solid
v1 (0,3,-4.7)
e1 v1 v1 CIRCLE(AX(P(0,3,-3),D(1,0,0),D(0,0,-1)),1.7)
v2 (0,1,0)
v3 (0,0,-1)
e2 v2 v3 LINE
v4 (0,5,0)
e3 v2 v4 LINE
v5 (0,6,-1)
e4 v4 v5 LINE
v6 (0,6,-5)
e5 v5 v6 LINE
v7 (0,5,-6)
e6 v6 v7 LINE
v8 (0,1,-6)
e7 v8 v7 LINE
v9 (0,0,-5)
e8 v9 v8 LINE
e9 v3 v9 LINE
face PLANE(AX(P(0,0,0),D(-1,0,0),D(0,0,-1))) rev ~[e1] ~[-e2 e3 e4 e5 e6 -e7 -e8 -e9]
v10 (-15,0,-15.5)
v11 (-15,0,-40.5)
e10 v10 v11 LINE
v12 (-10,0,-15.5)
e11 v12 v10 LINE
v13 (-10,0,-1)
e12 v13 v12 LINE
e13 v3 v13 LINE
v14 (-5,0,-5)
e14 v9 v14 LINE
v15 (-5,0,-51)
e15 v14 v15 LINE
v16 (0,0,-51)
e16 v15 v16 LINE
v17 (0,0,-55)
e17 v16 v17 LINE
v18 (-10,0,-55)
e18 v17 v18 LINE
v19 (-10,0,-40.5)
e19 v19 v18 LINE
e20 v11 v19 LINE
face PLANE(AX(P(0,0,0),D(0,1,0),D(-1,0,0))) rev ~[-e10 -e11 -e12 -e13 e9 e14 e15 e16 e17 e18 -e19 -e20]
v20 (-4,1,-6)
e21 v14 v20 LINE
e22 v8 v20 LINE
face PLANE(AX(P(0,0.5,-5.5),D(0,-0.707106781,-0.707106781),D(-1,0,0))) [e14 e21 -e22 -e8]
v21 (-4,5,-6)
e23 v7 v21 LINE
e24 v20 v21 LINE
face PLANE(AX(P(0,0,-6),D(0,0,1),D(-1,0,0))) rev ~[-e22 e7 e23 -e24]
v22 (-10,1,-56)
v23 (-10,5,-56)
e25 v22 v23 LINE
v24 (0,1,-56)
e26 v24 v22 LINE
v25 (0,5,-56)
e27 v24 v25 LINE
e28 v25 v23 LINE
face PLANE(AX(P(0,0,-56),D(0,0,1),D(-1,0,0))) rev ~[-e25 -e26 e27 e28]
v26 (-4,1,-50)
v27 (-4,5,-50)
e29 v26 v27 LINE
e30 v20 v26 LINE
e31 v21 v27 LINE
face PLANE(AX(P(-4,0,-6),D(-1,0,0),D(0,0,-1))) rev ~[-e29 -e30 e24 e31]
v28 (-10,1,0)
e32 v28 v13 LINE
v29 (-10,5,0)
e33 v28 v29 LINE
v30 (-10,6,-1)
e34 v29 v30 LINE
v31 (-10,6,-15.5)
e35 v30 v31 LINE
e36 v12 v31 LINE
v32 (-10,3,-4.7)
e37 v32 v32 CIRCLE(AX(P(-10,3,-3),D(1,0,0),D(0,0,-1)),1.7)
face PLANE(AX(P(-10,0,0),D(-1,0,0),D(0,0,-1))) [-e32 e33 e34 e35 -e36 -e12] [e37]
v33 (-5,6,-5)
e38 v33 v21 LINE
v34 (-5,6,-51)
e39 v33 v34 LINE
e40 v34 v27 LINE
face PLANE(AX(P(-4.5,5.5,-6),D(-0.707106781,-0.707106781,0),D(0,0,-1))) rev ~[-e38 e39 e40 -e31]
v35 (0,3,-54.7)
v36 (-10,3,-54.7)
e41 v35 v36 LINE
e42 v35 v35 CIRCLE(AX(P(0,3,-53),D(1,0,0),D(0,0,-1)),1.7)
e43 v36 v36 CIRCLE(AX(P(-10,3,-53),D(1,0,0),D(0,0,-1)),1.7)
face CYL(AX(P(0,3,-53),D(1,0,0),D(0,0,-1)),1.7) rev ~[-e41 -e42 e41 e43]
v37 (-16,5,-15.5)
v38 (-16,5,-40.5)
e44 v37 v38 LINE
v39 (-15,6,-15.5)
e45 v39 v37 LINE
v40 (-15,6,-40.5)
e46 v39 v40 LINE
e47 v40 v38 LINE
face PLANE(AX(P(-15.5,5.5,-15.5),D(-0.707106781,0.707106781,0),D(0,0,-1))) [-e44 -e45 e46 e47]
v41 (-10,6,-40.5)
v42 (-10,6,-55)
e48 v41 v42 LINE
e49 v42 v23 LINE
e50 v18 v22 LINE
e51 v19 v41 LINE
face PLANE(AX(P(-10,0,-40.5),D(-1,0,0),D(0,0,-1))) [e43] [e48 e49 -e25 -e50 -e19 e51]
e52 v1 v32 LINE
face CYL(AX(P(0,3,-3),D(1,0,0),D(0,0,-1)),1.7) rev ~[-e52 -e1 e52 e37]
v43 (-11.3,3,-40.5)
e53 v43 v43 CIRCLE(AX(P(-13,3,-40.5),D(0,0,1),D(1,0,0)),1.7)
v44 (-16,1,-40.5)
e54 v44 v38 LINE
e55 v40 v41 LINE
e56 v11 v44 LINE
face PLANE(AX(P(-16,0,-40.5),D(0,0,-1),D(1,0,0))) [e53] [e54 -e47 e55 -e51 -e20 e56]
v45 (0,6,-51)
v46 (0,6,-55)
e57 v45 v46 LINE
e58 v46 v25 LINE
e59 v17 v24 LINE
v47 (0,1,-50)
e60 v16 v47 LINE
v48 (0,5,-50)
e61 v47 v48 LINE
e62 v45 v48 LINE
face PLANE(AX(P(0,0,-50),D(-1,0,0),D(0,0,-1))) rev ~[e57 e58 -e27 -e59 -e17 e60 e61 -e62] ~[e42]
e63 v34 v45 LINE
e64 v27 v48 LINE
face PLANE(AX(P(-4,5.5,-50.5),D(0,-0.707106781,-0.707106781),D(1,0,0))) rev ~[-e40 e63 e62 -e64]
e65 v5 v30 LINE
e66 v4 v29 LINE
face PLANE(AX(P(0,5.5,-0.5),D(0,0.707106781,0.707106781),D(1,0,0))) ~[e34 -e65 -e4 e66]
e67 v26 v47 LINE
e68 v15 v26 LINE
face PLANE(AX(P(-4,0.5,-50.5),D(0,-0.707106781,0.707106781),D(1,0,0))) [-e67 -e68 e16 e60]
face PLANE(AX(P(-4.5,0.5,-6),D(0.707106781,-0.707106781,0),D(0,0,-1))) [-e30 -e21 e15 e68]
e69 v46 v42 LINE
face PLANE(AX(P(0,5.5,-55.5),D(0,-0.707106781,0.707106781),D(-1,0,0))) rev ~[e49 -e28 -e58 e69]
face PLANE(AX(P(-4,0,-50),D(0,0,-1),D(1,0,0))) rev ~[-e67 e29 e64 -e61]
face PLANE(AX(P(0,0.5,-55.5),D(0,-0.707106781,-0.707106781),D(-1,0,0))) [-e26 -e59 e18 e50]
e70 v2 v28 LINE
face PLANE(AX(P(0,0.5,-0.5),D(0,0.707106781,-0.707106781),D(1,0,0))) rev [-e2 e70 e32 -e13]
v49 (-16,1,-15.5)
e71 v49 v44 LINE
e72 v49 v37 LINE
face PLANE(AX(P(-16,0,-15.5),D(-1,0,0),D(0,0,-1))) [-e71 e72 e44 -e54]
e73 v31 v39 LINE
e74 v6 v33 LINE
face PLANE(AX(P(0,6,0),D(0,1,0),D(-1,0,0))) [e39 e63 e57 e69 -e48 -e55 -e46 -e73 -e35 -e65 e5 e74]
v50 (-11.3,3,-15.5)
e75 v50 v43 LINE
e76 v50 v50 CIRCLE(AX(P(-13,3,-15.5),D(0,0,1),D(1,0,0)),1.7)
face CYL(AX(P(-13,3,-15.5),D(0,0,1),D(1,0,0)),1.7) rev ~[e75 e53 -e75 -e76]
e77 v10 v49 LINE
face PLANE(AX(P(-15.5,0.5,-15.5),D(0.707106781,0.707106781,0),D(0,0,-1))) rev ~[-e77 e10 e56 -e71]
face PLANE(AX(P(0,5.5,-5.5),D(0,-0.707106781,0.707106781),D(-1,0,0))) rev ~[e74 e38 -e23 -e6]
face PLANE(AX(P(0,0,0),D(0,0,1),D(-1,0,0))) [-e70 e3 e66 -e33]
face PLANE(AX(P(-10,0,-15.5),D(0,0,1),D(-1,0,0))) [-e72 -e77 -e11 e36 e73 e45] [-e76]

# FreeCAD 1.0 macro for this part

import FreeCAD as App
import Part
import Sketcher
from FreeCAD import Vector


def edges_at(feature, points):
    """Names of the edges that pass closest to the given points."""
    edges = feature.Shape.Edges
    near = lambda p: min(range(len(edges)), key=lambda i: edges[i].distToShape(Part.Vertex(*p))[0])
    return sorted({f"Edge{near(p) + 1}" for p in points})

doc = App.newDocument("Part")
body = doc.addObject("PartDesign::Body", "Body")

# Sketch on XZ plane
sketch1 = body.newObject("Sketcher::SketchObject", "Sketch")
sketch1.AttachmentSupport = (doc.getObject("XZ_Plane"), [""])
sketch1.MapMode = "FlatFace"
sketch1.addGeometry([
    Part.LineSegment(Vector(-10, 0, 0), Vector(0, 0, 0)),  # 0
    Part.LineSegment(Vector(0, 0, 0), Vector(0, -6, 0)),  # 1
    Part.LineSegment(Vector(0, -6, 0), Vector(-4, -6, 0)),  # 2
    Part.LineSegment(Vector(-4, -6, 0), Vector(-4, -50, 0)),  # 3
    Part.LineSegment(Vector(-4, -50, 0), Vector(0, -50, 0)),  # 4
    Part.LineSegment(Vector(0, -50, 0), Vector(0, -56, 0)),  # 5
    Part.LineSegment(Vector(0, -56, 0), Vector(-10, -56, 0)),  # 6
    Part.LineSegment(Vector(-10, -56, 0), Vector(-10, -40.5, 0)),  # 7
    Part.LineSegment(Vector(-10, -40.5, 0), Vector(-16, -40.5, 0)),  # 8
    Part.LineSegment(Vector(-16, -40.5, 0), Vector(-16, -15.5, 0)),  # 9
    Part.LineSegment(Vector(-16, -15.5, 0), Vector(-10, -15.5, 0)),  # 10
    Part.LineSegment(Vector(-10, -15.5, 0), Vector(-10, 0, 0)),  # 11
], False)
sketch1.addConstraint([
    Sketcher.Constraint("Coincident", 0, 2, 1, 1),
    Sketcher.Constraint("Coincident", 1, 2, 2, 1),
    Sketcher.Constraint("Coincident", 2, 2, 3, 1),
    Sketcher.Constraint("Coincident", 3, 2, 4, 1),
    Sketcher.Constraint("Coincident", 4, 2, 5, 1),
    Sketcher.Constraint("Coincident", 5, 2, 6, 1),
    Sketcher.Constraint("Coincident", 6, 2, 7, 1),
    Sketcher.Constraint("Coincident", 7, 2, 8, 1),
    Sketcher.Constraint("Coincident", 8, 2, 9, 1),
    Sketcher.Constraint("Coincident", 9, 2, 10, 1),
    Sketcher.Constraint("Coincident", 10, 2, 11, 1),
    Sketcher.Constraint("Coincident", 11, 2, 0, 1),
    Sketcher.Constraint("Horizontal", 0),
    Sketcher.Constraint("Vertical", 1),
    Sketcher.Constraint("Horizontal", 2),
    Sketcher.Constraint("Vertical", 3),
    Sketcher.Constraint("Horizontal", 4),
    Sketcher.Constraint("Vertical", 5),
    Sketcher.Constraint("Horizontal", 6),
    Sketcher.Constraint("Vertical", 7),
    Sketcher.Constraint("Horizontal", 8),
    Sketcher.Constraint("Vertical", 9),
    Sketcher.Constraint("Horizontal", 10),
    Sketcher.Constraint("Vertical", 11),
    Sketcher.Constraint("Coincident", 0, 2, -1, 1),
    Sketcher.Constraint("PointOnObject", 4, 2, -2),
    Sketcher.Constraint("Vertical", 7, 2, 10, 2),
    Sketcher.Constraint("Equal", 10, 1),
    Sketcher.Constraint("Equal", 1, 5),
    Sketcher.Constraint("Equal", 7, 11),
    Sketcher.Constraint("DistanceX", 2, 2, 2, 1, 4.0),
    Sketcher.Constraint("DistanceX", 8, 2, 8, 1, 6.0),
    Sketcher.Constraint("DistanceY", 9, 1, 9, 2, 25.0),
    Sketcher.Constraint("DistanceY", 3, 2, -1, 1, 50.0),
    Sketcher.Constraint("DistanceX", 6, 2, 3, 2, 6.0),
])
pad1 = body.newObject("PartDesign::Pad", "Pad")
pad1.Profile = sketch1
pad1.Length = 6
pad1.Reversed = True

# Sketch on YZ plane
sketch2 = body.newObject("Sketcher::SketchObject", "Sketch001")
sketch2.AttachmentSupport = (doc.getObject("YZ_Plane"), [""])
sketch2.MapMode = "FlatFace"
sketch2.addGeometry([
    Part.Circle(Vector(3, -3, 0), Vector(0, 0, 1), 1.7),
    Part.Circle(Vector(3, -53, 0), Vector(0, 0, 1), 1.7),
], False)
sketch2.addConstraint([
    Sketcher.Constraint("Equal", 0, 1),
    Sketcher.Constraint("Vertical", 0, 3, 1, 3),
    Sketcher.Constraint("Diameter", 0, 3.4),
    Sketcher.Constraint("DistanceX", -1, 1, 0, 3, 3.0),
    Sketcher.Constraint("DistanceY", 0, 3, -1, 1, 3.0),
    Sketcher.Constraint("DistanceY", 1, 3, -1, 1, 53.0),
])
pocket1 = body.newObject("PartDesign::Pocket", "Pocket")
pocket1.Profile = sketch2
pocket1.Type = "ThroughAll"

# Sketch on XY plane
sketch3 = body.newObject("Sketcher::SketchObject", "Sketch002")
sketch3.AttachmentSupport = (doc.getObject("XY_Plane"), [""])
sketch3.MapMode = "FlatFace"
sketch3.AttachmentOffset = App.Placement(Vector(0, 0, -15.5), App.Rotation())
sketch3.addGeometry(Part.Circle(Vector(-13, 3, 0), Vector(0, 0, 1), 1.7), False)
sketch3.addConstraint([
    Sketcher.Constraint("Diameter", 0, 3.4),
    Sketcher.Constraint("DistanceX", 0, 3, -1, 1, 13.0),
    Sketcher.Constraint("DistanceY", -1, 1, 0, 3, 3.0),
])
pocket2 = body.newObject("PartDesign::Pocket", "Pocket001")
pocket2.Profile = sketch3
pocket2.Type = "ThroughAll"
doc.recompute()

chamfer = body.newObject("PartDesign::Chamfer", "Chamfer")
chamfer.Base = (pocket2, edges_at(pocket2, [
    (-5, 6, 0),
    (-5, 0, 0),
    (-16, 6, -28),
    (-16, 0, -28),
    (-2, 6, -50),
    (-5, 6, -56),
    (-5, 0, -56),
    (-2, 0, -50),
    (-4, 6, -28),
    (-4, 0, -28),
    (-2, 6, -6),
    (-2, 0, -6),
]))
chamfer.Size = 1

doc.recompute()
